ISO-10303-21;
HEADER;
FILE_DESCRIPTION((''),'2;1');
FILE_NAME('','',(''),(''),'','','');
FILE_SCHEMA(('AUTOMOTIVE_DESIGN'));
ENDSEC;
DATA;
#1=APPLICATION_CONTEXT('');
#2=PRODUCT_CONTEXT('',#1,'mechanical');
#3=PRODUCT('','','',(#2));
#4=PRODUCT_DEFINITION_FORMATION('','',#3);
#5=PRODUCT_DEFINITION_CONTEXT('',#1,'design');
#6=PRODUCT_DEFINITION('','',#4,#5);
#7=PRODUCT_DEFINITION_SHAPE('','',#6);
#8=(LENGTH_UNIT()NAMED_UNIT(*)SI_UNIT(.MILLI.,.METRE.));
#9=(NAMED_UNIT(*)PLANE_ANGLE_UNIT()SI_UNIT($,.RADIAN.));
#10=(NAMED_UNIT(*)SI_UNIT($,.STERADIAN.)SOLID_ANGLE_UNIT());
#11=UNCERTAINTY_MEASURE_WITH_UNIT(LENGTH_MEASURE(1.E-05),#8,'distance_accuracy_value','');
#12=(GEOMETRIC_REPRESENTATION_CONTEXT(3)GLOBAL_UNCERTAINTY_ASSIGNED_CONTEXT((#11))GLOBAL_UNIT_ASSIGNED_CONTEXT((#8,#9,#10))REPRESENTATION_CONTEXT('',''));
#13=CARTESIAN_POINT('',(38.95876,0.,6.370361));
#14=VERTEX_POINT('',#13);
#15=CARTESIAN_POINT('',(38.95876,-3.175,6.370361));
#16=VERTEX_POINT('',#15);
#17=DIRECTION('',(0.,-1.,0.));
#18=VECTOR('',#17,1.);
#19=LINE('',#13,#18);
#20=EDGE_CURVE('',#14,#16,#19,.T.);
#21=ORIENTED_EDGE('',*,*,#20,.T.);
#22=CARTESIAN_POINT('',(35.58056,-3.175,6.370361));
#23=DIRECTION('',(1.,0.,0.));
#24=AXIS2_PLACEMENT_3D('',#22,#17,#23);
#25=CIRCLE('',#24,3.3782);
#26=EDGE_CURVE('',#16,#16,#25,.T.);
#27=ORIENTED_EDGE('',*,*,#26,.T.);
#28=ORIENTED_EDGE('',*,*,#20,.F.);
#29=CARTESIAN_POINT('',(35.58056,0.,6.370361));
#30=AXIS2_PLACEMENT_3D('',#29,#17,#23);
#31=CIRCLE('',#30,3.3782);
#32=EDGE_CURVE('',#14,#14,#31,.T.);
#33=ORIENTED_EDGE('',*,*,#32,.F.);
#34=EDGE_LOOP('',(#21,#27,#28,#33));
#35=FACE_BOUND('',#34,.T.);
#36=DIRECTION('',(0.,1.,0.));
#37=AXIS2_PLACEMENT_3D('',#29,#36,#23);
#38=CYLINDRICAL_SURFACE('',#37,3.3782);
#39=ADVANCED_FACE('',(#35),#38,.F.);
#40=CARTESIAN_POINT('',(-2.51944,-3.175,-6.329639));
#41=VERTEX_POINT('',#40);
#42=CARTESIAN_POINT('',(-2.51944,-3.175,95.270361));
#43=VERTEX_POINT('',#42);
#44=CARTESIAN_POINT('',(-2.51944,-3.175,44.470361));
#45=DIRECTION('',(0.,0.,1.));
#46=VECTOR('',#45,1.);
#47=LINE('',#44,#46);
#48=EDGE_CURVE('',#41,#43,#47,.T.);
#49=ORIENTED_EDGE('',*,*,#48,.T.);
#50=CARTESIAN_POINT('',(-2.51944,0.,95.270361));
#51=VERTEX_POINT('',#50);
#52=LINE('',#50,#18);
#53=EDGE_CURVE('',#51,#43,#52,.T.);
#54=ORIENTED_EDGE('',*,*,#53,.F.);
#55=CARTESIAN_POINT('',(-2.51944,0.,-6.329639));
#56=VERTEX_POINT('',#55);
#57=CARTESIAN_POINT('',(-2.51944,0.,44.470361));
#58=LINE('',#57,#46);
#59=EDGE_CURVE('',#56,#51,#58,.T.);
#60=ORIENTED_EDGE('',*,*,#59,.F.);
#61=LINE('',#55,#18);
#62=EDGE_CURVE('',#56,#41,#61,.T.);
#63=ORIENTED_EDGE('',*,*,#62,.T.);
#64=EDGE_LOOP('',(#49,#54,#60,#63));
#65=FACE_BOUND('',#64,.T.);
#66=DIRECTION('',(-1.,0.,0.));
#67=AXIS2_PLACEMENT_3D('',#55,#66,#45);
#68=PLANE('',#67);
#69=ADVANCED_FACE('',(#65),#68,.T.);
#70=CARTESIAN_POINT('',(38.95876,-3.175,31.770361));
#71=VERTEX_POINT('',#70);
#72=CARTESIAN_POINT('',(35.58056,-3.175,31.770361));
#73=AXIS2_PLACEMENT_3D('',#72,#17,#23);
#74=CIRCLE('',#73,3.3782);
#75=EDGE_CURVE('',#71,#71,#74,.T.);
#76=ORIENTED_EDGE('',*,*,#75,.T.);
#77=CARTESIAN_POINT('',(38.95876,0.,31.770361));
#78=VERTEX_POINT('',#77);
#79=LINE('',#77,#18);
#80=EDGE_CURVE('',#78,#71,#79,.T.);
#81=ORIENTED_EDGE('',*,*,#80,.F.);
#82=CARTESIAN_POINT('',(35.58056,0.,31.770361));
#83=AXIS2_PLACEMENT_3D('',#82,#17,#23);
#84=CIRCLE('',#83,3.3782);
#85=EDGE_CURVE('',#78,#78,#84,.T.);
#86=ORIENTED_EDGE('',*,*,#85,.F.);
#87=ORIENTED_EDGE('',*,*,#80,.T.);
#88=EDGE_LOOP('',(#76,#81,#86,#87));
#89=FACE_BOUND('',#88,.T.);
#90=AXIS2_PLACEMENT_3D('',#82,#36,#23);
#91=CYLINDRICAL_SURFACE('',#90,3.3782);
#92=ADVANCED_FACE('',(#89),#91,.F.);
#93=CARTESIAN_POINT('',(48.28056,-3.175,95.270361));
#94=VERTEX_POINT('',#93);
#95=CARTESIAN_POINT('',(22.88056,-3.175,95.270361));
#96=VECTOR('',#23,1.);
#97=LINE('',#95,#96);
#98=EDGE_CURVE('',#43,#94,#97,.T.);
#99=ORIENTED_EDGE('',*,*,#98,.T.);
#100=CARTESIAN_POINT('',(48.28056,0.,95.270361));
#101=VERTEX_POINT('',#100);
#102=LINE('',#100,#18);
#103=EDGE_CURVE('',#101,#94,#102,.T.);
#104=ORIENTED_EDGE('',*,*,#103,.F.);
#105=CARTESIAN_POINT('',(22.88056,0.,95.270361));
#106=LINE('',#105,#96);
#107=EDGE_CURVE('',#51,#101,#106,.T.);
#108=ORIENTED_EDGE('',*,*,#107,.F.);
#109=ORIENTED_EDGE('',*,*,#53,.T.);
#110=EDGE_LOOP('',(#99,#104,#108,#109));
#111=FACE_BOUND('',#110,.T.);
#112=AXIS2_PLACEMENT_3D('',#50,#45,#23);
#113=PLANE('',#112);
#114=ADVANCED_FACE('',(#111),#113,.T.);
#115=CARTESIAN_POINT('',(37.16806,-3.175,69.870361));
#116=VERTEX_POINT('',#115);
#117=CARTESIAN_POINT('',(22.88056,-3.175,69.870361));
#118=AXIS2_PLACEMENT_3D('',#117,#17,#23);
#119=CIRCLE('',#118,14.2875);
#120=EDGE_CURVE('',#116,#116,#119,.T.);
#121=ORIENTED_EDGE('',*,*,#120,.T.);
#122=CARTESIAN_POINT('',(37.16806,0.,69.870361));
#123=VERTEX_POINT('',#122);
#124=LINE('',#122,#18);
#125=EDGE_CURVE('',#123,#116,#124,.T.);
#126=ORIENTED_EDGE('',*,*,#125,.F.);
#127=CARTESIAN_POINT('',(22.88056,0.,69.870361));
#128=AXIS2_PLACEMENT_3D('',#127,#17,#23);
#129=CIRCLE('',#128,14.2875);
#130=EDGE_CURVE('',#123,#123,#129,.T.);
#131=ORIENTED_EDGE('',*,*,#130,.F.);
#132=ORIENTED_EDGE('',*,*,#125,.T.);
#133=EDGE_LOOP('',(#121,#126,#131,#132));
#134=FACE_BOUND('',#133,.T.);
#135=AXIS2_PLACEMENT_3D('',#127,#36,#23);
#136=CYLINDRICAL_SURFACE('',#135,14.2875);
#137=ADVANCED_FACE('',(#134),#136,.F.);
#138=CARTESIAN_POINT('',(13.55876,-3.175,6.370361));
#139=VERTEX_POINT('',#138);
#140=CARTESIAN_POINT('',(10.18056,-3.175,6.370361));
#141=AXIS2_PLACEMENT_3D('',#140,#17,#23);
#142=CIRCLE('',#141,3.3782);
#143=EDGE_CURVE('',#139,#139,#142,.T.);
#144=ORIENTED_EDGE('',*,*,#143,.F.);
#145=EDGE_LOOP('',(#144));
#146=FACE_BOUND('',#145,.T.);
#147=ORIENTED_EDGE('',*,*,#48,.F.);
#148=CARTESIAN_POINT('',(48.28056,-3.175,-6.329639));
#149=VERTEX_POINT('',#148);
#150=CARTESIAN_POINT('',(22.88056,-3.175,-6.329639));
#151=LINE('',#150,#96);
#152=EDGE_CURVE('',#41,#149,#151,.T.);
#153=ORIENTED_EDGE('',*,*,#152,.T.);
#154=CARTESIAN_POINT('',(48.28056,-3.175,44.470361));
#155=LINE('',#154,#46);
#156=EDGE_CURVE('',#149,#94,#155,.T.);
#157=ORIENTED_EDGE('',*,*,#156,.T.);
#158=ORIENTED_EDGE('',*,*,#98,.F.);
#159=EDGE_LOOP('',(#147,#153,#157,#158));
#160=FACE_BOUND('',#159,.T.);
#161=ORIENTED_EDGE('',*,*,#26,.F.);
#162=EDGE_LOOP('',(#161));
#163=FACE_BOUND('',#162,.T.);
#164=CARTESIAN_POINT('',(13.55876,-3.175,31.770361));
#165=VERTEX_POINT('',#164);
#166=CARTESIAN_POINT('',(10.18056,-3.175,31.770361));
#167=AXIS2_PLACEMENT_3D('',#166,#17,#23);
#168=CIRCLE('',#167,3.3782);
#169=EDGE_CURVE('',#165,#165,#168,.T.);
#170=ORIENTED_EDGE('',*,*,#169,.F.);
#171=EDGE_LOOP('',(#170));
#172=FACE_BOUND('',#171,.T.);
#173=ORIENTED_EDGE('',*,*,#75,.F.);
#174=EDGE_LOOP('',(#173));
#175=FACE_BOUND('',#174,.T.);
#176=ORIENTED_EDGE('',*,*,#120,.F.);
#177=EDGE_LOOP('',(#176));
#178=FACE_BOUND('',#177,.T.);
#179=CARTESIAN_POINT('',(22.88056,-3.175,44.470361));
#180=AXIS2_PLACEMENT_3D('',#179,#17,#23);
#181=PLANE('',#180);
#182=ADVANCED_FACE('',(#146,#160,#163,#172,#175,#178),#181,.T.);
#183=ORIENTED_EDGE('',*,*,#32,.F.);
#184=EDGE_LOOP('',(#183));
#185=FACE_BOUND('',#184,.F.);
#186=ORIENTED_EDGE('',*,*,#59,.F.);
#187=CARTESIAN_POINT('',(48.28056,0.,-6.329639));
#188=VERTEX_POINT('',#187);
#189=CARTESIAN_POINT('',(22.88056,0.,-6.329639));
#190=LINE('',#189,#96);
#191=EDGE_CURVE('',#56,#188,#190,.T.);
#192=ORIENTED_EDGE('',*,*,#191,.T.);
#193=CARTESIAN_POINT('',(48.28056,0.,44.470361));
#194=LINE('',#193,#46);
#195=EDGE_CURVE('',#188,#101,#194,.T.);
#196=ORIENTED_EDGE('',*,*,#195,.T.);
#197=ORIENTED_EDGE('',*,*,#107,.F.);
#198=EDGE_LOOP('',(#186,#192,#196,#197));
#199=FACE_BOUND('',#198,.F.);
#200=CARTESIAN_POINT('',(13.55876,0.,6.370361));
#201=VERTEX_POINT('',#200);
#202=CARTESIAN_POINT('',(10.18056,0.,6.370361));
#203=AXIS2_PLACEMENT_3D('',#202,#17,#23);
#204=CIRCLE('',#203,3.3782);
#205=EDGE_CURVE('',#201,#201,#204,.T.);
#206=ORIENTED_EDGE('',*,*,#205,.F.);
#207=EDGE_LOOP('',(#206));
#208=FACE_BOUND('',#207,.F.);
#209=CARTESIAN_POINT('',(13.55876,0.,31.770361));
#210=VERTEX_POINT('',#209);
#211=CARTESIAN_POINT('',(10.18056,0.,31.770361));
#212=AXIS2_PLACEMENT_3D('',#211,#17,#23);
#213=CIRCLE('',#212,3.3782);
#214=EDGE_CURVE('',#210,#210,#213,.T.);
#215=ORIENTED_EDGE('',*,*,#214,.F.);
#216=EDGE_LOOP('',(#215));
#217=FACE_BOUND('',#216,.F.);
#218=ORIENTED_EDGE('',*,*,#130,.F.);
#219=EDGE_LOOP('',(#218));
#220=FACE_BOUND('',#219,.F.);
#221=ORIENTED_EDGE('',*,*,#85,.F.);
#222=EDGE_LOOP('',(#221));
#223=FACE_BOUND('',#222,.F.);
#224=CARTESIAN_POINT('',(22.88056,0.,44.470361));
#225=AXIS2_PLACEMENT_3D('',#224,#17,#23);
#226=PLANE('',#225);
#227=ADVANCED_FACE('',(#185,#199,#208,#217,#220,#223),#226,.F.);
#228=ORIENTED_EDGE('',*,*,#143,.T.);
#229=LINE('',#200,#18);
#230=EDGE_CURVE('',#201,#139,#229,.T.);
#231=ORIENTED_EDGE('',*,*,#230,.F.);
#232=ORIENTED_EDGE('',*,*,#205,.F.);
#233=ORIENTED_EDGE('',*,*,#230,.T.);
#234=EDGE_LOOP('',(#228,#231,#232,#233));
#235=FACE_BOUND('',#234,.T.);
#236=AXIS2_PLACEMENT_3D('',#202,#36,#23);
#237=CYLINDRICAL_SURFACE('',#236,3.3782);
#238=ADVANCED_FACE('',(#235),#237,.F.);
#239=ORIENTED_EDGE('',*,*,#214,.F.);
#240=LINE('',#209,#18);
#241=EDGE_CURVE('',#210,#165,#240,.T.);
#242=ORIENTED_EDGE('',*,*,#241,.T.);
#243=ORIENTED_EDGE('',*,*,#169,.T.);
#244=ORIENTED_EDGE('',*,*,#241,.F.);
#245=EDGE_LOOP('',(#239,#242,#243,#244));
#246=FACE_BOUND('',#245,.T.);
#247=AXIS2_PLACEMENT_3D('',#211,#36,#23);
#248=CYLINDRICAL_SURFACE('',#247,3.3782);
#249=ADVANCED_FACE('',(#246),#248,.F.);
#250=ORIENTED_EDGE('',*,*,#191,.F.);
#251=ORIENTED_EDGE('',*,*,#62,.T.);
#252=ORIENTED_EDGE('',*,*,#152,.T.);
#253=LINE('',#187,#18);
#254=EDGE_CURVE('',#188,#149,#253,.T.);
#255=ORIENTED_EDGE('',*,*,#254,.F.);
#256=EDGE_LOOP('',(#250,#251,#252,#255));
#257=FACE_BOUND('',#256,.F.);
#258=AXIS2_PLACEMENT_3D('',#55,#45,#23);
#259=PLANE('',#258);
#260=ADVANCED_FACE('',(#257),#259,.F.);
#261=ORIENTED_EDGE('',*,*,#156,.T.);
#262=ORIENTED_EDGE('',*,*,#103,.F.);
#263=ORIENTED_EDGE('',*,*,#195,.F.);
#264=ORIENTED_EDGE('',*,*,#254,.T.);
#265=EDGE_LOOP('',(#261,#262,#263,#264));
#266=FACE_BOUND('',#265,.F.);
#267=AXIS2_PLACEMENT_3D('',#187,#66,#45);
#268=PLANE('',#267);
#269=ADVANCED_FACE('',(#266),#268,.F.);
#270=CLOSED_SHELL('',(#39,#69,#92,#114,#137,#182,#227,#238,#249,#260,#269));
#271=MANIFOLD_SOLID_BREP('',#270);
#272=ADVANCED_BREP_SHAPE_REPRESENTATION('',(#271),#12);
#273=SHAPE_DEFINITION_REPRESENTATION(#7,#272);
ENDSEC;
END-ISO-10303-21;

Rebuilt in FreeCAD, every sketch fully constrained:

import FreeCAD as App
import Part
import Sketcher

V = App.Vector
Q = App.Units.Quantity


def add_polygon(sketch, points):
    """Adds a closed chain of lines whose ends are joined by coincident constraints."""
    first, n = sketch.GeometryCount, len(points)
    for a, b in zip(points, points[1:] + points[:1]):
        sketch.addGeometry(Part.LineSegment(App.Vector(*a, 0), App.Vector(*b, 0)), False)
    for i in range(n):
        sketch.addConstraint(Sketcher.Constraint("Coincident", first + i, 2, first + (i + 1) % n, 1))

doc = App.newDocument("Part")
body = doc.addObject("PartDesign::Body", "Body")

# Sketch on XZ plane
sketch1 = body.newObject("Sketcher::SketchObject", "Sketch")
sketch1.AttachmentSupport = (doc.getObject("XZ_Plane"), [""])
sketch1.MapMode = "FlatFace"
add_polygon(sketch1, [(-2.5, 95.3), (-2.5, -6.3), (48.3, -6.3), (48.3, 95.3)])  # lines 0-3
sketch1.addGeometry(Part.Circle(V(10.2, 6.4, 0), V(0, 0, 1), 3.4), False)  # 4
sketch1.addGeometry(Part.Circle(V(10.2, 31.8, 0), V(0, 0, 1), 3.4), False)  # 5
sketch1.addGeometry(Part.Circle(V(35.6, 6.4, 0), V(0, 0, 1), 3.4), False)  # 6
sketch1.addGeometry(Part.Circle(V(35.6, 31.8, 0), V(0, 0, 1), 3.4), False)  # 7
sketch1.addGeometry(Part.Circle(V(22.9, 69.9, 0), V(0, 0, 1), 14.3), False)  # 8
sketch1.addConstraint(Sketcher.Constraint("Vertical", 0))
sketch1.addConstraint(Sketcher.Constraint("Horizontal", 1))
sketch1.addConstraint(Sketcher.Constraint("Vertical", 2))
sketch1.addConstraint(Sketcher.Constraint("Horizontal", 3))
sketch1.addConstraint(Sketcher.Constraint("Equal", 4, 5))
sketch1.addConstraint(Sketcher.Constraint("Equal", 5, 6))
sketch1.addConstraint(Sketcher.Constraint("Equal", 6, 7))
sketch1.addConstraint(Sketcher.Constraint("Horizontal", 4, 3, 6, 3))
sketch1.addConstraint(Sketcher.Constraint("Horizontal", 5, 3, 7, 3))
sketch1.addConstraint(Sketcher.Constraint("Vertical", 4, 3, 5, 3))
sketch1.addConstraint(Sketcher.Constraint("Vertical", 6, 3, 7, 3))
sketch1.addConstraint(Sketcher.Constraint("DistanceX", 1, 1, 1, 2, Q("2 in")))
sketch1.addConstraint(Sketcher.Constraint("DistanceY", 0, 2, 0, 1, Q("4 in")))
sketch1.addConstraint(Sketcher.Constraint("Diameter", 4, Q("0.266 in")))
sketch1.addConstraint(Sketcher.Constraint("Diameter", 8, Q("1.125 in")))
sketch1.addConstraint(Sketcher.Constraint("DistanceY", 4, 3, 5, 3, Q("1 in")))
sketch1.addConstraint(Sketcher.Constraint("DistanceX", 4, 3, 6, 3, Q("1 in")))
sketch1.addConstraint(Sketcher.Constraint("DistanceX", 0, 2, 8, 3, Q("1 in")))
sketch1.addConstraint(Sketcher.Constraint("DistanceY", 0, 2, 8, 3, Q("3 in")))
sketch1.addConstraint(Sketcher.Constraint("DistanceX", 5, 3, 8, 3, Q("0.5 in")))
sketch1.addConstraint(Sketcher.Constraint("DistanceY", 5, 3, 8, 3, Q("1.5 in")))
sketch1.addConstraint(Sketcher.Constraint("DistanceX", -1, 1, 4, 3, 10.18056))
sketch1.addConstraint(Sketcher.Constraint("DistanceY", -1, 1, 4, 3, 6.370361))
pad1 = body.newObject("PartDesign::Pad", "Pad")
pad1.Profile = sketch1
pad1.Length = Q("0.125 in")

doc.recompute()
